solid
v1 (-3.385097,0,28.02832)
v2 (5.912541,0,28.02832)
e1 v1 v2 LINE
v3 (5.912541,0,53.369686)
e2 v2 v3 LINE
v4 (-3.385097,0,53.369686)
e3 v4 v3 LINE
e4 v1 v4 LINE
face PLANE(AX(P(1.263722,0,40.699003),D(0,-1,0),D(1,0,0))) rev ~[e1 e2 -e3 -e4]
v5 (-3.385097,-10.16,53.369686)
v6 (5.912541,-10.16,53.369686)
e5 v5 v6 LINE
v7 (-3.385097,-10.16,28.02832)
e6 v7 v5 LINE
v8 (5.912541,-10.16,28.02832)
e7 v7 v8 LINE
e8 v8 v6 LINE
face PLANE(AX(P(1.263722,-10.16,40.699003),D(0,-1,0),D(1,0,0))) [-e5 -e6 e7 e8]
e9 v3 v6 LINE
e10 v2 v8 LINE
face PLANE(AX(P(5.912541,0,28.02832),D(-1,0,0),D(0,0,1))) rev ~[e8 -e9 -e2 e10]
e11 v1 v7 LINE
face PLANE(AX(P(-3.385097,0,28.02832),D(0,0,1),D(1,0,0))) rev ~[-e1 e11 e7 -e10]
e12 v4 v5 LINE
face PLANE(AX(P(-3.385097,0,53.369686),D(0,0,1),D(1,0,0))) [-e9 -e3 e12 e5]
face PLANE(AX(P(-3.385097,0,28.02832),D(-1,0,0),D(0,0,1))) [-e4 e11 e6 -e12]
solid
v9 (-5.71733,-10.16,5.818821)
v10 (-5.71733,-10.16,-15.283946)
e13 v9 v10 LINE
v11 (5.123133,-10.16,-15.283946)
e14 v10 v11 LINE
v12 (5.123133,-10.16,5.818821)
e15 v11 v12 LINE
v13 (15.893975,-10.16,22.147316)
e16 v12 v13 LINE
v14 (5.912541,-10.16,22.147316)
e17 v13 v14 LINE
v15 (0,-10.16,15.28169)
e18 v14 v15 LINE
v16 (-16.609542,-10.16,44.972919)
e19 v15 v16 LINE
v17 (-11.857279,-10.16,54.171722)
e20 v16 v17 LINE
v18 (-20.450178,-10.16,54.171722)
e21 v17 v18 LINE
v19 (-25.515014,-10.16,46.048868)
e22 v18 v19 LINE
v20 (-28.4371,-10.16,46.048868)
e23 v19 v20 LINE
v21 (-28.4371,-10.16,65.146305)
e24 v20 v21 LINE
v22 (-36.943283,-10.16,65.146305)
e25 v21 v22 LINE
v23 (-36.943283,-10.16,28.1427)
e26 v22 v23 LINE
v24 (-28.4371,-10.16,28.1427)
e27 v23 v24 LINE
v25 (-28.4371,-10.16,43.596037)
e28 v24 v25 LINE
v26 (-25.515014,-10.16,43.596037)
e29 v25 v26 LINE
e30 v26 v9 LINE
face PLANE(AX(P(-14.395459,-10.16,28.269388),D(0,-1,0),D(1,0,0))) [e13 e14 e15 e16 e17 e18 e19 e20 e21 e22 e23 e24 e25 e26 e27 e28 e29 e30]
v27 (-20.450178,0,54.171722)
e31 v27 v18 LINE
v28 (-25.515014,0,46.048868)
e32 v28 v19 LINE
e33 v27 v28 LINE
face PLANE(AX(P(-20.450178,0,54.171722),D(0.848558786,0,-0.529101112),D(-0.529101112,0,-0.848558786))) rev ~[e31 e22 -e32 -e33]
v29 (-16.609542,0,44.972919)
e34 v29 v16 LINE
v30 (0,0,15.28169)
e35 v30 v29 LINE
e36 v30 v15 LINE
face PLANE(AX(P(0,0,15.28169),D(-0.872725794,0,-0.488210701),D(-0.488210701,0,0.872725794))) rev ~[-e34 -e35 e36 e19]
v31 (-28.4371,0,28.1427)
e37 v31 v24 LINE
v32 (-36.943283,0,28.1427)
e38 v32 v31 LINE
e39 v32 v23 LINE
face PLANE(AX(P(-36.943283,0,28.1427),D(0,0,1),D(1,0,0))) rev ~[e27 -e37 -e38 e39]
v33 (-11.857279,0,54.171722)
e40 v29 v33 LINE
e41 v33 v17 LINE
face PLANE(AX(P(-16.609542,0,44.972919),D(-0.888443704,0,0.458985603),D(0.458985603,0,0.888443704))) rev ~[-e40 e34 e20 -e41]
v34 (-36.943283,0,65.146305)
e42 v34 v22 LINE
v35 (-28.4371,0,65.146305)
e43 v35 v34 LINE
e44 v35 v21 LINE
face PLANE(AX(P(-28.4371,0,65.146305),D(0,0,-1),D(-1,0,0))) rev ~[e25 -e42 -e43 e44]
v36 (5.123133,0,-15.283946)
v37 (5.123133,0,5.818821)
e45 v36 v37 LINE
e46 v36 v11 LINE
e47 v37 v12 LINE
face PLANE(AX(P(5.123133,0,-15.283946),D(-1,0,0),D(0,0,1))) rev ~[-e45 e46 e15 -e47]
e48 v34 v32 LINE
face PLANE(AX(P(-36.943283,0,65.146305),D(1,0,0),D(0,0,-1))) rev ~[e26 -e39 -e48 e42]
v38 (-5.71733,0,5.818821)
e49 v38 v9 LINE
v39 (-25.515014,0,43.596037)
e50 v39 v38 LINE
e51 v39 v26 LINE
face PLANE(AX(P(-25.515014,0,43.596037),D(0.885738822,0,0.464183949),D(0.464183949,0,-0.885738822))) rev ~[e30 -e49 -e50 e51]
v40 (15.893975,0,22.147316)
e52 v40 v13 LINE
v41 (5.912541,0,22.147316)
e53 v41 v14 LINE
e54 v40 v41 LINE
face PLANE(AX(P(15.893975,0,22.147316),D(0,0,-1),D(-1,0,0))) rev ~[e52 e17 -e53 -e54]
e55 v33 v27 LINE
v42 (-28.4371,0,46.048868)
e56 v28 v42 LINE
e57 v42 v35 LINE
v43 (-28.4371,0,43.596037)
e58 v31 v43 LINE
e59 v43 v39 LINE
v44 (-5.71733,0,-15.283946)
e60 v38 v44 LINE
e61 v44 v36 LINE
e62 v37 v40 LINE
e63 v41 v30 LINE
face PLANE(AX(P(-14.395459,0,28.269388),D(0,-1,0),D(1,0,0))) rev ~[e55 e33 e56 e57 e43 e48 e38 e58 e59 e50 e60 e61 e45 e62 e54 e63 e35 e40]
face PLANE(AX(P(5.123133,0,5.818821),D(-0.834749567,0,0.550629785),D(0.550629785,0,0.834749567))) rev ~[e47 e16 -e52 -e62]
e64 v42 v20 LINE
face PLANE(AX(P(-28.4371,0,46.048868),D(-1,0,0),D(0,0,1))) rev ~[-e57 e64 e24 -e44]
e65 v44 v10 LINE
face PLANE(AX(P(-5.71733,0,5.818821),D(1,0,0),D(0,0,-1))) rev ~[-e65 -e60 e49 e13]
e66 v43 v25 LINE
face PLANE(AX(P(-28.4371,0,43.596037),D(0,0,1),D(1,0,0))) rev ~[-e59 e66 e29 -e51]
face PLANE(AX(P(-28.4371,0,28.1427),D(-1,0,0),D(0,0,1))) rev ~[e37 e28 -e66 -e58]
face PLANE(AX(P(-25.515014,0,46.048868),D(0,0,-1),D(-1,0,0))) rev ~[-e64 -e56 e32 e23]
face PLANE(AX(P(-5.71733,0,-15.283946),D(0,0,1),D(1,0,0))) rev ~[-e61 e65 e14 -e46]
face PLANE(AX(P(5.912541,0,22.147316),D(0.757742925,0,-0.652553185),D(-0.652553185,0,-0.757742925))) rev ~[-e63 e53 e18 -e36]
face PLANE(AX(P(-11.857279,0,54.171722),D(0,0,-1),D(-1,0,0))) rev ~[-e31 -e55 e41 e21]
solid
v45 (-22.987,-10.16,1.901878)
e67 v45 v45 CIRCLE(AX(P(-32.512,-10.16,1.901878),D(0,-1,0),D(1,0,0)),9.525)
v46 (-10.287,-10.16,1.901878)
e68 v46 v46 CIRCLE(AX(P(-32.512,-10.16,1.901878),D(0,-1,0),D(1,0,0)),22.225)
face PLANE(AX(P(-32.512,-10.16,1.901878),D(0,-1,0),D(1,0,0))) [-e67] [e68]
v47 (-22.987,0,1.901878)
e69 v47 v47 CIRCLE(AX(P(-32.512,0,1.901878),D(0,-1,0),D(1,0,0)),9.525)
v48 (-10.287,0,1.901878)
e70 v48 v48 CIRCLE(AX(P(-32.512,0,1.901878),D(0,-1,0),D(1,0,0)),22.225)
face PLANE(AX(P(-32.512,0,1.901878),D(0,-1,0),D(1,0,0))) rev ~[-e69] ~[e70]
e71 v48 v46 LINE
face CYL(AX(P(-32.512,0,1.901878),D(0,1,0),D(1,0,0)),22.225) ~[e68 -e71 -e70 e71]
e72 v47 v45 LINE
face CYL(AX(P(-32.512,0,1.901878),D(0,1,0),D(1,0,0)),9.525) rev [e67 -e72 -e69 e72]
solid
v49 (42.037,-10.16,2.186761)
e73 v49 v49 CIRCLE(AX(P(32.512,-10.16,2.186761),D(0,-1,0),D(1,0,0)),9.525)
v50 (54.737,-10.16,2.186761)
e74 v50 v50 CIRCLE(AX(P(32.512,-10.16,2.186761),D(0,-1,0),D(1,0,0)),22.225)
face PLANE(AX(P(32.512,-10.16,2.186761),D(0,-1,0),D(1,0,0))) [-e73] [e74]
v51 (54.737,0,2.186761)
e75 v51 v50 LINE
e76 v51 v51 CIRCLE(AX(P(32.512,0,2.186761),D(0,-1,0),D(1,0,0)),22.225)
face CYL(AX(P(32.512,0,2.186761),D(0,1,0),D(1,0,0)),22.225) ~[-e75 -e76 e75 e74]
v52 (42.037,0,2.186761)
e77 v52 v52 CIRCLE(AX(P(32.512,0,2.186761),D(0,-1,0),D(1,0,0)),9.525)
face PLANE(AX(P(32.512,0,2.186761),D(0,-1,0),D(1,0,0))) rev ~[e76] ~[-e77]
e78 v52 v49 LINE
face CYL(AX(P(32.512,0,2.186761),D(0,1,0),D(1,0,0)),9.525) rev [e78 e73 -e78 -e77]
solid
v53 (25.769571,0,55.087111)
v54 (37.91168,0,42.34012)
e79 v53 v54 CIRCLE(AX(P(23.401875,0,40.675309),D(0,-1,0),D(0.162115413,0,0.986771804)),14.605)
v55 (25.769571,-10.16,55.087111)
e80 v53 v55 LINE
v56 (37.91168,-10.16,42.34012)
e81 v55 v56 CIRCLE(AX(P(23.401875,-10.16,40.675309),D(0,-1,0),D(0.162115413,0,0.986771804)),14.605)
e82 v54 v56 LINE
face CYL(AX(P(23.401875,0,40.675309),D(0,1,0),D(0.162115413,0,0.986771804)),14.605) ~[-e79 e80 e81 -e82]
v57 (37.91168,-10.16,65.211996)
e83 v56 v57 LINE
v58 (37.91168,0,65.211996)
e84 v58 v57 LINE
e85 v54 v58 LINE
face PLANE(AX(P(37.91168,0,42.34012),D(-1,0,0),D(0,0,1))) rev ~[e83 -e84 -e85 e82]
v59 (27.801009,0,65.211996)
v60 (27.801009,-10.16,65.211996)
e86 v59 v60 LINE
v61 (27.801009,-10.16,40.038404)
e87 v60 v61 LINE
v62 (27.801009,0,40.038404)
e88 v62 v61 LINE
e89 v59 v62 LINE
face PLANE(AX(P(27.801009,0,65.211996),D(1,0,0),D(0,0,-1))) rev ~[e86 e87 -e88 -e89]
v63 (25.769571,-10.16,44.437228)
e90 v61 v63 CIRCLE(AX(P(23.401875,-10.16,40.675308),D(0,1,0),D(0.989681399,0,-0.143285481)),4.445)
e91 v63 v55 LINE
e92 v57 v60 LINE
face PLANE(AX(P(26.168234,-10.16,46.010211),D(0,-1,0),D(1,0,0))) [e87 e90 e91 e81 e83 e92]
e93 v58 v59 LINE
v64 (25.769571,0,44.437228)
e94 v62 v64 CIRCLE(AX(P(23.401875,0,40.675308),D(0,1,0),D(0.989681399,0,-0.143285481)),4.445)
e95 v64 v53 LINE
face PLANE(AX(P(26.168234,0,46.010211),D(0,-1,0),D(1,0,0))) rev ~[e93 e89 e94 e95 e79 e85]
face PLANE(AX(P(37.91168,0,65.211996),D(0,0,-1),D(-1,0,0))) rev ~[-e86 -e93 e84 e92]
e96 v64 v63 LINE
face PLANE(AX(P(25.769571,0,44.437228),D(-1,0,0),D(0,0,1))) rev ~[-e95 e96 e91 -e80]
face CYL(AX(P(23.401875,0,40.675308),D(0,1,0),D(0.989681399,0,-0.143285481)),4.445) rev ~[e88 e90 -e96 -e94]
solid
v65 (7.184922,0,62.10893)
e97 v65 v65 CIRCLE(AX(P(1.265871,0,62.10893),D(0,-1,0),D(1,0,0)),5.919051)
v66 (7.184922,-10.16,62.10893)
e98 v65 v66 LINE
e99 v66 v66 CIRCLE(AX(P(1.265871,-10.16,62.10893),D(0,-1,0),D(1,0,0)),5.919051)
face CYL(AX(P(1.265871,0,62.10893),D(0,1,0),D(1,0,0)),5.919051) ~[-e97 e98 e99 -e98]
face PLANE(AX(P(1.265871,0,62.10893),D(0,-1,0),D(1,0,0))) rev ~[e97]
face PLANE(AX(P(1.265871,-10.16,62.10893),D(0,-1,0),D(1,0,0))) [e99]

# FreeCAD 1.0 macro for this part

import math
import FreeCAD as App
import Part
import Sketcher

V = App.Vector
Q = App.Units.Quantity


def add_polygon(sketch, points):
    """Adds a closed chain of lines whose ends are joined by coincident constraints."""
    first, n = sketch.GeometryCount, len(points)
    for a, b in zip(points, points[1:] + points[:1]):
        sketch.addGeometry(Part.LineSegment(App.Vector(*a, 0), App.Vector(*b, 0)), False)
    for i in range(n):
        sketch.addConstraint(Sketcher.Constraint("Coincident", first + i, 2, first + (i + 1) % n, 1))

doc = App.newDocument("Part")
body = doc.addObject("PartDesign::Body", "Body")
body.AllowCompound = True

sketch1 = body.newObject("Sketcher::SketchObject", "Sketch")
sketch1.AttachmentSupport = (doc.getObject("XZ_Plane"), [""])
sketch1.MapMode = "FlatFace"
sketch1.addGeometry(Part.Circle(V(-32.5, 1.9, 0), V(0, 0, 1), 22.2), False)
sketch1.addGeometry(Part.Circle(V(-32.5, 1.9, 0), V(0, 0, 1), 9.5), False)
sketch1.addGeometry(Part.Circle(V(32.5, 2.2, 0), V(0, 0, 1), 22.2), False)
sketch1.addGeometry(Part.Circle(V(32.5, 2.2, 0), V(0, 0, 1), 9.5), False)
add_polygon(sketch1, [(-5.7, 5.8), (-5.7, -15.3), (5.1, -15.3), (5.1, 5.8), (15.9, 22.1), (5.9, 22.1), (0, 15.3), (-16.6, 45), (-11.9, 54.2), (-20.5, 54.2), (-25.5, 46), (-28.4, 46), (-28.4, 65.1), (-36.9, 65.1), (-36.9, 28.1), (-28.4, 28.1), (-28.4, 43.6), (-25.5, 43.6)])
add_polygon(sketch1, [(-3.4, 53.4), (-3.4, 28), (5.9, 28), (5.9, 53.4)])
sketch1.addGeometry(Part.ArcOfCircle(Part.Circle(V(23.4, 40.7, 0), V(0, 0, 1), 4.4), math.radians(58), math.radians(352)), False)
sketch1.addGeometry(Part.LineSegment(V(25.8, 44.4, 0), V(25.8, 55.1, 0)), False)
sketch1.addGeometry(Part.ArcOfCircle(Part.Circle(V(23.4, 40.7, 0), V(0, 0, 1), 14.6), math.radians(81), math.radians(367)), False)
sketch1.addGeometry(Part.LineSegment(V(37.9, 42.3, 0), V(37.9, 65.2, 0)), False)
sketch1.addGeometry(Part.LineSegment(V(37.9, 65.2, 0), V(27.8, 65.2, 0)), False)
sketch1.addGeometry(Part.LineSegment(V(27.8, 65.2, 0), V(27.8, 40, 0)), False)
sketch1.addGeometry(Part.Circle(V(1.3, 62.1, 0), V(0, 0, 1), 5.9), False)
sketch1.addConstraint([
    Sketcher.Constraint("Coincident", 26, 1, 27, 1),
    Sketcher.Constraint("Coincident", 27, 2, 28, 1),
    Sketcher.Constraint("Coincident", 28, 2, 29, 1),
    Sketcher.Constraint("Coincident", 29, 2, 30, 1),
    Sketcher.Constraint("Coincident", 30, 2, 31, 1),
    Sketcher.Constraint("Coincident", 31, 2, 26, 2),
    Sketcher.Constraint("Vertical", 4),
    Sketcher.Constraint("Horizontal", 5),
    Sketcher.Constraint("Vertical", 6),
    Sketcher.Constraint("Horizontal", 8),
    Sketcher.Constraint("Horizontal", 12),
    Sketcher.Constraint("Horizontal", 14),
    Sketcher.Constraint("Vertical", 15),
    Sketcher.Constraint("Horizontal", 16),
    Sketcher.Constraint("Vertical", 17),
    Sketcher.Constraint("Horizontal", 18),
    Sketcher.Constraint("Vertical", 19),
    Sketcher.Constraint("Horizontal", 20),
    Sketcher.Constraint("Vertical", 22),
    Sketcher.Constraint("Horizontal", 23),
    Sketcher.Constraint("Vertical", 24),
    Sketcher.Constraint("Horizontal", 25),
    Sketcher.Constraint("Vertical", 27),
    Sketcher.Constraint("Vertical", 29),
    Sketcher.Constraint("Horizontal", 30),
    Sketcher.Constraint("Vertical", 31),
    Sketcher.Constraint("Coincident", 1, 3, 0, 3),
    Sketcher.Constraint("Coincident", 3, 3, 2, 3),
    Sketcher.Constraint("Coincident", 28, 3, 26, 3),
    Sketcher.Constraint("Equal", 0, 2),
    Sketcher.Constraint("Equal", 1, 3),
    Sketcher.Constraint("PointOnObject", 9, 2, -2),
    Sketcher.Constraint("Horizontal", 6, 2, 21, 2),
    Sketcher.Constraint("Vertical", 15, 2, 18, 2),
    Sketcher.Constraint("Vertical", 13, 2, 20, 2),
    Sketcher.Constraint("Vertical", 8, 2, 23, 2),
    Sketcher.Constraint("Diameter", 0, Q("1.75 in")),
    Sketcher.Constraint("Diameter", 1, Q("0.75 in")),
    Sketcher.Constraint("Radius", 26, Q("0.175 in")),
    Sketcher.Constraint("Radius", 28, Q("0.575 in")),
    Sketcher.Constraint("Diameter", 32, 11.838102),
    Sketcher.Constraint("DistanceX", 0, 3, -1, 1, Q("1.28 in")),
    Sketcher.Constraint("DistanceX", -1, 1, 2, 3, Q("1.28 in")),
    Sketcher.Constraint("DistanceX", 12, 2, 12, 1, 8.592899),
    Sketcher.Constraint("DistanceX", 30, 2, 30, 1, 10.110671),
    Sketcher.Constraint("DistanceY", 31, 2, 31, 1, 25.173592),
    Sketcher.Constraint("DistanceX", 14, 2, -1, 1, 28.4371),
    Sketcher.Constraint("DistanceY", -1, 1, 17, 2, 28.1427),
    Sketcher.Constraint("DistanceX", 7, 2, 26, 3, 7.5079),
    Sketcher.Constraint("DistanceY", 22, 2, 10, 2, 16.944598),
    Sketcher.Constraint("DistanceY", 21, 2, 22, 2, 22.209499),
    Sketcher.Constraint("DistanceX", 32, 3, 27, 2, 24.5037),
    Sketcher.Constraint("Distance", 7, 19.560951),
    Sketcher.Constraint("Distance", 11, 10.353839),
    Sketcher.Constraint("Distance", 13, 9.572529),
    Sketcher.Constraint("DistanceX", 5, 1, 5, 2, 10.840463),
    Sketcher.Constraint("DistanceX", 8, 2, 8, 1, 9.981434),
    Sketcher.Constraint("DistanceX", 14, 2, 14, 1, 2.922086),
    Sketcher.Constraint("DistanceX", 16, 2, 16, 1, 8.506183),
    Sketcher.Constraint("DistanceX", 23, 1, 23, 2, 9.297638),
    Sketcher.Constraint("DistanceY", 4, 2, 4, 1, 21.102767),
    Sketcher.Constraint("DistanceY", 15, 1, 15, 2, 19.097437),
    Sketcher.Constraint("DistanceY", 17, 2, 17, 1, 37.003605),
    Sketcher.Constraint("DistanceY", 19, 1, 19, 2, 15.453337),
    Sketcher.Constraint("DistanceY", 22, 2, 22, 1, 25.341365),
    Sketcher.Constraint("DistanceY", 27, 1, 27, 2, 10.649883),
    Sketcher.Constraint("DistanceY", 29, 1, 29, 2, 22.871876),
    Sketcher.Constraint("DistanceY", -1, 1, 2, 3, 2.186761),
    Sketcher.Constraint("DistanceY", -1, 1, 28, 3, 40.675309),
    Sketcher.Constraint("DistanceX", -1, 1, 32, 3, 1.265871),
    Sketcher.Constraint("DistanceY", -1, 1, 32, 3, 62.10893),
    Sketcher.Constraint("DistanceX", 4, 2, -1, 1, 5.71733),
    Sketcher.Constraint("DistanceY", -1, 1, 6, 2, 5.818821),
    Sketcher.Constraint("DistanceY", -1, 1, 9, 2, 15.28169),
    Sketcher.Constraint("DistanceX", 11, 2, -1, 1, 11.857279),
    Sketcher.Constraint("DistanceY", 0, 3, 26, 3, 38.77343),
])
pad1 = body.newObject("PartDesign::Pad", "Pad")
pad1.Profile = sketch1
pad1.Length = Q("0.4 in")

doc.recompute()
